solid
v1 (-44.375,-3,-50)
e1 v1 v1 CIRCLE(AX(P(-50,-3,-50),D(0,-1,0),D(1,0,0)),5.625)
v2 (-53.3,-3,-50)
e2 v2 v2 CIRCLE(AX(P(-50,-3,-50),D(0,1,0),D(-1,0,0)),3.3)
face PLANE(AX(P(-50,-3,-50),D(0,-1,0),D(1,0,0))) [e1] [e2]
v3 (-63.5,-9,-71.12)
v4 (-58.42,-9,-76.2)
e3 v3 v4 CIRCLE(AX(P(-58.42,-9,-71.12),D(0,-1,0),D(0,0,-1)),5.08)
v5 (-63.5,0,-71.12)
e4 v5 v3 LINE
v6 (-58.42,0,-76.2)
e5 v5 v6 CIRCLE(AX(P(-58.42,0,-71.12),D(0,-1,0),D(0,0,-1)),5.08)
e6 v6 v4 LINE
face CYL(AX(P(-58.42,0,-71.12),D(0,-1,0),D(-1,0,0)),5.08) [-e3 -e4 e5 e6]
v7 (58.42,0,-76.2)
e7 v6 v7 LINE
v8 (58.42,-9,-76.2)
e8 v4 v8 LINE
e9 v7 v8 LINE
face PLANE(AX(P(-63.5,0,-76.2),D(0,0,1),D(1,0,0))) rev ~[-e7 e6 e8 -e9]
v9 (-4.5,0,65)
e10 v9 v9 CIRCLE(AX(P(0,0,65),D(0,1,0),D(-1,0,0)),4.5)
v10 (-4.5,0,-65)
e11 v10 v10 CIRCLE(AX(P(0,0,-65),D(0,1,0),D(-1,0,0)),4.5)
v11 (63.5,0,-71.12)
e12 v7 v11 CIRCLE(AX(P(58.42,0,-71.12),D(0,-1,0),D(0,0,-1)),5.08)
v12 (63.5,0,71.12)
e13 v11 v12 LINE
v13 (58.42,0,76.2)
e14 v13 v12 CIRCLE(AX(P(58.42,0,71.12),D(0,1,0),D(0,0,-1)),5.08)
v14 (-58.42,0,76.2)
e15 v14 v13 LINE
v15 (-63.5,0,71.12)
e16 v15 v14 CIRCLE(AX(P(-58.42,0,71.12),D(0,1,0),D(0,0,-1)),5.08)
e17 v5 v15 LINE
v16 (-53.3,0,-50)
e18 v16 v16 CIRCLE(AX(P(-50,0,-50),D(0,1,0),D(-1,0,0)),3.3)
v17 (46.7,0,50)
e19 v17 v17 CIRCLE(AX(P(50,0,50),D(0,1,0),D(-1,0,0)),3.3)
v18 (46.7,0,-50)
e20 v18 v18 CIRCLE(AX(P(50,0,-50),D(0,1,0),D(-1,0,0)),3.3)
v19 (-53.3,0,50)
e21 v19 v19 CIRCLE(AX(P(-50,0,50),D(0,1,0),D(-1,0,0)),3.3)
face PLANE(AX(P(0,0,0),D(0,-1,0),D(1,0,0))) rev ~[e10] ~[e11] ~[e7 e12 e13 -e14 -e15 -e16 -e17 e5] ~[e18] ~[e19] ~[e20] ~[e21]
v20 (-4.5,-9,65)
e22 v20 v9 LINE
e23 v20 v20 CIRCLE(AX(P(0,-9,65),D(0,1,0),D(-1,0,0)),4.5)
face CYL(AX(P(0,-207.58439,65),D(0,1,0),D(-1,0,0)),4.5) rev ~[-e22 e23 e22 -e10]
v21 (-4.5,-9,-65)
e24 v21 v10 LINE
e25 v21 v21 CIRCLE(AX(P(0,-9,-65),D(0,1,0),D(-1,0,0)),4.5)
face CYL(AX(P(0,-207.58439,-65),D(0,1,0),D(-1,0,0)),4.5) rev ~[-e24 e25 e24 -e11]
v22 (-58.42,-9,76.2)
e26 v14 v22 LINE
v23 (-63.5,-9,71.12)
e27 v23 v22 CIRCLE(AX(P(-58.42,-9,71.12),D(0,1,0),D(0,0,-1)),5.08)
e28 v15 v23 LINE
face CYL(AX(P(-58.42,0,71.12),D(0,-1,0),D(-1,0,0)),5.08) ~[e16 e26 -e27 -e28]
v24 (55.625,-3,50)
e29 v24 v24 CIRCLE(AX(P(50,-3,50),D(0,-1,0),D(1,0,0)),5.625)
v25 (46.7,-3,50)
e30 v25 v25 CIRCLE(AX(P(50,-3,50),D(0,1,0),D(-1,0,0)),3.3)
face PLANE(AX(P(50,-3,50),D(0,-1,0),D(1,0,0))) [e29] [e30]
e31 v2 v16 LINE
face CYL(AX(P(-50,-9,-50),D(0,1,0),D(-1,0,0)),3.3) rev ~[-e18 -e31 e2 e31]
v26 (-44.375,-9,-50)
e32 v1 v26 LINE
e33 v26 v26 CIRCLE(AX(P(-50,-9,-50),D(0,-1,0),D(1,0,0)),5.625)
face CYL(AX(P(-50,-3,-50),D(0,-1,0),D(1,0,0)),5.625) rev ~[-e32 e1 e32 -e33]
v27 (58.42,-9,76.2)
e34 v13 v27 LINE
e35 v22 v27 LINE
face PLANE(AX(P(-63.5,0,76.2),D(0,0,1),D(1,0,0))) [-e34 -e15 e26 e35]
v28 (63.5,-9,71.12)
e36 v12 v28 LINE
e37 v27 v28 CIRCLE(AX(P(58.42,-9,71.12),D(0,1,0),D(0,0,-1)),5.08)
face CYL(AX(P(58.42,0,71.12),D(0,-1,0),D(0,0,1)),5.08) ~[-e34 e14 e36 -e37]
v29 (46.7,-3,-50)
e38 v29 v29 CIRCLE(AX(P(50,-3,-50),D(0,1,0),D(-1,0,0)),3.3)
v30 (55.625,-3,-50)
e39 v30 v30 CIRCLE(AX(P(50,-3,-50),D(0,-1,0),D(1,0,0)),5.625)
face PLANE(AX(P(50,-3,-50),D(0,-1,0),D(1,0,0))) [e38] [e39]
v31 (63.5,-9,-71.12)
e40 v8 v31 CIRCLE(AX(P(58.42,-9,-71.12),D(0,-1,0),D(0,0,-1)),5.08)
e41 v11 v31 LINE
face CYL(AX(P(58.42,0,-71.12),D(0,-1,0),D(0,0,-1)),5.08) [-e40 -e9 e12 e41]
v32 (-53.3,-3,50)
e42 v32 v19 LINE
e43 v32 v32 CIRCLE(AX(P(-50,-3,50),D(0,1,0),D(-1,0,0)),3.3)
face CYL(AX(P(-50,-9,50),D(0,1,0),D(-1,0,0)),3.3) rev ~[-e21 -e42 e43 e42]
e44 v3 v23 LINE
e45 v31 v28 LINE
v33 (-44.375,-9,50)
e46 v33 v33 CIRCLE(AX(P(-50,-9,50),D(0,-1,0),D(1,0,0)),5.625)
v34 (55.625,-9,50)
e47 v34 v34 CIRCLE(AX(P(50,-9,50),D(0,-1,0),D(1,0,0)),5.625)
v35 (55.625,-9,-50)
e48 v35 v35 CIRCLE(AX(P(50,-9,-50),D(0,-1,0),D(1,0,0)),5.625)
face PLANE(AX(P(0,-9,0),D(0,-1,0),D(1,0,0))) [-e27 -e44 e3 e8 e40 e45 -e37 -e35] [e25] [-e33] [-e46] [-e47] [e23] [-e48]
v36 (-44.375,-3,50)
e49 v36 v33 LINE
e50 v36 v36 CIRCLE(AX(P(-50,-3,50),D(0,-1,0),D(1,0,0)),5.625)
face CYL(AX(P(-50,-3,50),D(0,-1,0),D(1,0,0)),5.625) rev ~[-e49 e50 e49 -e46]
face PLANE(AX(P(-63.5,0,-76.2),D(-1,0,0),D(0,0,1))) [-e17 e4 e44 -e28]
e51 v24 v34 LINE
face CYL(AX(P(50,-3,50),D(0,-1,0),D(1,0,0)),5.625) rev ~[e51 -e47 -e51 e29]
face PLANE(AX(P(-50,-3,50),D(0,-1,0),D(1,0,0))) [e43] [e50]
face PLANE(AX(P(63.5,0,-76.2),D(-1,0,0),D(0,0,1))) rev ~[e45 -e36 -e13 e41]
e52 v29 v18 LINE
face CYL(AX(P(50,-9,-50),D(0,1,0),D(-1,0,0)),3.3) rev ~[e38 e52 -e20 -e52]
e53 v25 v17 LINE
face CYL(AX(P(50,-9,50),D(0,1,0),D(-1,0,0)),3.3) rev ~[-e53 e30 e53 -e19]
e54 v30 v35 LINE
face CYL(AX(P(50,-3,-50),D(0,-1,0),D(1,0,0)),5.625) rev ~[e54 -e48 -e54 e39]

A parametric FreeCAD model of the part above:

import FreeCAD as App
import Part
import Sketcher
from FreeCAD import Vector
Q = App.Units.Quantity


def edges_at(feature, points):
    """Names of the edges that pass closest to the given points."""
    edges = feature.Shape.Edges
    near = lambda p: min(range(len(edges)), key=lambda i: edges[i].distToShape(Part.Vertex(*p))[0])
    return sorted({f"Edge{near(p) + 1}" for p in points})

doc = App.newDocument("Part")
body = doc.addObject("PartDesign::Body", "Body")

sketch1 = doc.addObject("Sketcher::SketchObject", "Sketch")
body.addObject(sketch1)
sketch1.AttachmentSupport = (doc.XZ_Plane, [""])
sketch1.MapMode = "FlatFace"
sketch1.addGeometry([
    Part.LineSegment(Vector(-64, 76, 0), Vector(-64, -76, 0)),
    Part.LineSegment(Vector(-64, -76, 0), Vector(64, -76, 0)),
    Part.LineSegment(Vector(64, -76, 0), Vector(64, 76, 0)),
    Part.LineSegment(Vector(64, 76, 0), Vector(-64, 76, 0)),
], False)
sketch1.addConstraint([
    Sketcher.Constraint("Coincident", 0, 2, 1, 1),
    Sketcher.Constraint("Coincident", 1, 2, 2, 1),
    Sketcher.Constraint("Coincident", 2, 2, 3, 1),
    Sketcher.Constraint("Coincident", 3, 2, 0, 1),
    Sketcher.Constraint("Vertical", 0),
    Sketcher.Constraint("Horizontal", 1),
    Sketcher.Constraint("Vertical", 2),
    Sketcher.Constraint("Horizontal", 3),
    Sketcher.Constraint("Symmetric", 0, 2, 2, 2, -1, 1),
    Sketcher.Constraint("DistanceX", 1, 1, 1, 2, Q("5 in")),
    Sketcher.Constraint("DistanceY", 0, 2, 0, 1, Q("6 in")),
])
pad1 = doc.addObject("PartDesign::Pad", "Pad")
body.addObject(pad1)
pad1.Profile = sketch1
pad1.Length = 9

sketch2 = doc.addObject("Sketcher::SketchObject", "Sketch001")
body.addObject(sketch2)
sketch2.AttachmentSupport = (doc.XZ_Plane, [""])
sketch2.MapMode = "FlatFace"
sketch2.AttachmentOffset = App.Placement(Vector(0, 0, 9), App.Rotation())
sketch2.addGeometry([
    Part.Circle(Vector(0, 65, 0), Vector(0, 0, 1), 4.5),
    Part.Circle(Vector(0, -65, 0), Vector(0, 0, 1), 4.5),
], False)
sketch2.addConstraint([
    Sketcher.Constraint("Equal", 0, 1),
    Sketcher.Constraint("Symmetric", 0, 3, 1, 3, -1, 1),
    Sketcher.Constraint("PointOnObject", 0, 3, -2),
    Sketcher.Constraint("Diameter", 0, Q("9 mm")),
    Sketcher.Constraint("DistanceY", -1, 1, 0, 3, Q("65 mm")),
])
doc.recompute()
hole = doc.addObject("PartDesign::Hole", "Hole")
body.addObject(hole)
hole.Profile = sketch2
hole.ThreadType = "None"
hole.Diameter = 9
hole.DepthType = "ThroughAll"

sketch3 = doc.addObject("Sketcher::SketchObject", "Sketch002")
body.addObject(sketch3)
sketch3.AttachmentSupport = (doc.XZ_Plane, [""])
sketch3.MapMode = "FlatFace"
sketch3.AttachmentOffset = App.Placement(Vector(0, 0, 9), App.Rotation())
sketch3.addGeometry([
    Part.Circle(Vector(-50, 50, 0), Vector(0, 0, 1), 3.3),
    Part.Circle(Vector(50, 50, 0), Vector(0, 0, 1), 3.3),
    Part.Circle(Vector(50, -50, 0), Vector(0, 0, 1), 3.3),
    Part.Circle(Vector(-50, -50, 0), Vector(0, 0, 1), 3.3),
], False)
sketch3.addConstraint([
    Sketcher.Constraint("Equal", 0, 1),
    Sketcher.Constraint("Equal", 1, 2),
    Sketcher.Constraint("Equal", 2, 3),
    Sketcher.Constraint("Symmetric", 0, 3, 2, 3, -1, 1),
    Sketcher.Constraint("Symmetric", 1, 3, 3, 3, -1, 1),
    Sketcher.Constraint("Symmetric", 0, 3, 1, 3, -2),
    Sketcher.Constraint("Diameter", 0, Q("6.6 mm")),
    Sketcher.Constraint("DistanceX", 0, 3, -1, 1, Q("50 mm")),
    Sketcher.Constraint("DistanceY", -1, 1, 0, 3, Q("50 mm")),
])
doc.recompute()
hole2 = doc.addObject("PartDesign::Hole", "Hole001")
body.addObject(hole2)
hole2.Profile = sketch3
hole2.ThreadType = "None"
hole2.Diameter = 6.6
hole2.DepthType = "ThroughAll"
hole2.HoleCutType = "Counterbore"
hole2.HoleCutDiameter = 11.25
hole2.HoleCutDepth = 6
doc.recompute()

fillet = doc.addObject("PartDesign::Fillet", "Fillet")
body.addObject(fillet)
fillet.Base = (hole2, edges_at(hole2, [
    (63.5, -4.5, 76.2),
    (63.5, -4.5, -76.2),
    (-63.5, -4.5, -76.2),
    (-63.5, -4.5, 76.2),
]))
fillet.Radius = Q("0.2 in")

doc.recompute()
